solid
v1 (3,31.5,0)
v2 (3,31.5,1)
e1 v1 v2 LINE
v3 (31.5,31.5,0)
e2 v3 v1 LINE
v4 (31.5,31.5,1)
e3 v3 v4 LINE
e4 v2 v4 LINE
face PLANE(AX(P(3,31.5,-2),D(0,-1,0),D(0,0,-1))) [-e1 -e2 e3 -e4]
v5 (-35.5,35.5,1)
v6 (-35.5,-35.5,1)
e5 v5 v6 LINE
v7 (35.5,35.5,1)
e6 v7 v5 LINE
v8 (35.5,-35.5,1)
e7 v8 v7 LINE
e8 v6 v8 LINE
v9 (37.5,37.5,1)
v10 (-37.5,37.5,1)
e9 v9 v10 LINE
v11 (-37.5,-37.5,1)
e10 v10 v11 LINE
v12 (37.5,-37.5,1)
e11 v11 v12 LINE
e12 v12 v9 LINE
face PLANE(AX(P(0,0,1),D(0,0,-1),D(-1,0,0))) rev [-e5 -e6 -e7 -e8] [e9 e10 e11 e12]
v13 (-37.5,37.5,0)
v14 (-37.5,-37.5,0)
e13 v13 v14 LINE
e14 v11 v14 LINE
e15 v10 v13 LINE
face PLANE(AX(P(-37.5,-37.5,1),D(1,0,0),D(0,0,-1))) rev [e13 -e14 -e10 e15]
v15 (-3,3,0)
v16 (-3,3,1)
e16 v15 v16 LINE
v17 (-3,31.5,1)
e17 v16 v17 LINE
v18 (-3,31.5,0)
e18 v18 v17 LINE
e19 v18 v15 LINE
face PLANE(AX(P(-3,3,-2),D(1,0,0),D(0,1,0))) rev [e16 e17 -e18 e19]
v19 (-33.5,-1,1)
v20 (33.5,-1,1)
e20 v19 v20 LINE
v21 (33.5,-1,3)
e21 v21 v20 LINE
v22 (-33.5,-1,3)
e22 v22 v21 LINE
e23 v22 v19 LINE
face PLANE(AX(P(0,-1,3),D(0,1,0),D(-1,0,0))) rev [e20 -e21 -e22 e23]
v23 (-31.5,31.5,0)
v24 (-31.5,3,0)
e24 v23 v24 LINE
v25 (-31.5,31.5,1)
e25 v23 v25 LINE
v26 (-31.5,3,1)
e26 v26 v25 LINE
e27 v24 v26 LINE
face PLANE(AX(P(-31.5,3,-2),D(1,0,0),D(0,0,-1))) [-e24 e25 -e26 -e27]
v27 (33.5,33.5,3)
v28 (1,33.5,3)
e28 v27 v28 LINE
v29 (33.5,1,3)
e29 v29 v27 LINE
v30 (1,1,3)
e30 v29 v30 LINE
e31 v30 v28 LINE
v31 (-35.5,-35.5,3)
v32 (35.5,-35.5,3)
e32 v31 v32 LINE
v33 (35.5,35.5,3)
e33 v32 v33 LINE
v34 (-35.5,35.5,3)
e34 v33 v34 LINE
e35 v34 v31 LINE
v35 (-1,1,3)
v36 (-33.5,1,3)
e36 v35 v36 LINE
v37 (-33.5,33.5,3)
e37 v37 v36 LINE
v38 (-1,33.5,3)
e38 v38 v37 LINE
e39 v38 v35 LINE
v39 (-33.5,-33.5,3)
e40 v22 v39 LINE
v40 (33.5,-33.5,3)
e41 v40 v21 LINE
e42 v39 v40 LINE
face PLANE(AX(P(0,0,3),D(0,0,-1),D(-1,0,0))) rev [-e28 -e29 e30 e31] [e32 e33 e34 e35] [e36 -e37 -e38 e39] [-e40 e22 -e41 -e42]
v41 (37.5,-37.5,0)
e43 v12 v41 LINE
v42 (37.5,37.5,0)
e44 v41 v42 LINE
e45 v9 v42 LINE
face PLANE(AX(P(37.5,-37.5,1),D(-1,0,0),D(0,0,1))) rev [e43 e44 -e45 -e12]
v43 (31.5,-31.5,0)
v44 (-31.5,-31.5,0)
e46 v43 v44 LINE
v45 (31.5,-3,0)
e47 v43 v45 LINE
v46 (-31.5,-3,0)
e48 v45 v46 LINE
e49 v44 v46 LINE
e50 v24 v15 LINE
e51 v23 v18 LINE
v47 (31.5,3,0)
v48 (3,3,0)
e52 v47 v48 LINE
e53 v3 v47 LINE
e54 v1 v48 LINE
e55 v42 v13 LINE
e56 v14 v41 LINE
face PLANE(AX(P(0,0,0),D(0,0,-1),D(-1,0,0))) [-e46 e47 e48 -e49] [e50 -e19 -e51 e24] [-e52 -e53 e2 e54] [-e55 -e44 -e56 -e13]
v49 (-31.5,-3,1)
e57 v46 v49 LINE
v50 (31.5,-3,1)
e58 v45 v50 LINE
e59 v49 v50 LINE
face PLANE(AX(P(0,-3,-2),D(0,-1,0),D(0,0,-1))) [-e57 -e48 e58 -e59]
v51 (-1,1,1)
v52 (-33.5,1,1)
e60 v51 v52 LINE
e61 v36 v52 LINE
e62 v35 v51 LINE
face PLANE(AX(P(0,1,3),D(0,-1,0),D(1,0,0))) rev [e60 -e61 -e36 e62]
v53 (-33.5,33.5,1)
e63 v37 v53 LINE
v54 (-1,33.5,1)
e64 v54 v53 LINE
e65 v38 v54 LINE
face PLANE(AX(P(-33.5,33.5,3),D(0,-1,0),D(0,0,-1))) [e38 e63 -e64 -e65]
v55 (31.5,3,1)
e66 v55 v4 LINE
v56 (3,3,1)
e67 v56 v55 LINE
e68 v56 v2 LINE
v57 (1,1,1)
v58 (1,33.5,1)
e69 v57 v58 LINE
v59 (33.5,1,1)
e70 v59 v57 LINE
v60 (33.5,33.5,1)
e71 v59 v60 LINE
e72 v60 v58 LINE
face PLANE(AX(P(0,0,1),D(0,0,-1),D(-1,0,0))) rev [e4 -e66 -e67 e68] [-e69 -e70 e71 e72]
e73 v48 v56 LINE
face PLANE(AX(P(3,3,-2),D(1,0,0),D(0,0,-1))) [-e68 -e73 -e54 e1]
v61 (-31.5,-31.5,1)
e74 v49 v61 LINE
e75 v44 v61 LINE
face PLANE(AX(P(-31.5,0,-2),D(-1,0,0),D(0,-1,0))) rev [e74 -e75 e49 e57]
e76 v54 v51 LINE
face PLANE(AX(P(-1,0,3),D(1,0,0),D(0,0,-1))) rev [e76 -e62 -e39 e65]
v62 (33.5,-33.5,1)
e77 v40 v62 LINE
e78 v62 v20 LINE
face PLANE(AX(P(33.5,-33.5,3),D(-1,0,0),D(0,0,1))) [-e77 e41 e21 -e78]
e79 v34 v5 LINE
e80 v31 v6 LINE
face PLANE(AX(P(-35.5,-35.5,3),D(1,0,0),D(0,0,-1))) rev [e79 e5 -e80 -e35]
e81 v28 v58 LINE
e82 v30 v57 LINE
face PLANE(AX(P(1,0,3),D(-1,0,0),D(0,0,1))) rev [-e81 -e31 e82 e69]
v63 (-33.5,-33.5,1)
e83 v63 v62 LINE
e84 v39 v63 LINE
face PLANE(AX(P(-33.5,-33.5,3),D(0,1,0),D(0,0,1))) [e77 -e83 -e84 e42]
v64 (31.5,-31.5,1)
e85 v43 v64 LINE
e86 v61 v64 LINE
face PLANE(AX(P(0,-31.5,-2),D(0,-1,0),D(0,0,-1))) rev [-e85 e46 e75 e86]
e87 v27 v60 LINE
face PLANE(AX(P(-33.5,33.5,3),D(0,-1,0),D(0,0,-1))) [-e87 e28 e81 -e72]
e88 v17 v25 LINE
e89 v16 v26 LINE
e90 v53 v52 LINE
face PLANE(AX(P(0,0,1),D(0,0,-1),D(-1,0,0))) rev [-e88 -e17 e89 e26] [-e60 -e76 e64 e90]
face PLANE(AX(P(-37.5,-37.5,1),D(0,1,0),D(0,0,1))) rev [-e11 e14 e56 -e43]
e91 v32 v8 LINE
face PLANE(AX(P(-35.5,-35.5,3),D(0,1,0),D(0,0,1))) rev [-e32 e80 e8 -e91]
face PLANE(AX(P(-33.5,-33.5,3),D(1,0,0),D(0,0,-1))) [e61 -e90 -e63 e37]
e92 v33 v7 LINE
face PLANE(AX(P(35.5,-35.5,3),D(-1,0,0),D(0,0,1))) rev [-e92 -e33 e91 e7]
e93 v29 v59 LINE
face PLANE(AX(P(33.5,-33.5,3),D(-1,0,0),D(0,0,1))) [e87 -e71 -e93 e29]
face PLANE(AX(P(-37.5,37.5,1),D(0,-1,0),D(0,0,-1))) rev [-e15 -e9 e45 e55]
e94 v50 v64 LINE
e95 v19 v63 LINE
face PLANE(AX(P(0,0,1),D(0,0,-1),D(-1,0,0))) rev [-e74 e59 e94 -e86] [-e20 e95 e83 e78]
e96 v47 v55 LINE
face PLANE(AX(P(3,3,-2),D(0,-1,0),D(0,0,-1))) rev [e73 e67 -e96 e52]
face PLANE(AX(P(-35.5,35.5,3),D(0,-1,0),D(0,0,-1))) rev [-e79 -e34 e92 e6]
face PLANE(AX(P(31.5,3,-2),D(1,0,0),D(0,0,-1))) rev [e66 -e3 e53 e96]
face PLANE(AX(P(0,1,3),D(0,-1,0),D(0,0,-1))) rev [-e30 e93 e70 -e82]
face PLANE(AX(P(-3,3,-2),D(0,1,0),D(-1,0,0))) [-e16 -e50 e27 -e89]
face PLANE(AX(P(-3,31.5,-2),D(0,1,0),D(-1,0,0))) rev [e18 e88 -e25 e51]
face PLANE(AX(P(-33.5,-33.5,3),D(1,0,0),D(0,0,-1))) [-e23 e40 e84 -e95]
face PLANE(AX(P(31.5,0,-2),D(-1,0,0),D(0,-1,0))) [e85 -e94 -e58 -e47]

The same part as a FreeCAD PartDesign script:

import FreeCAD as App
import Part
import Sketcher
Q = App.Units.Quantity

doc = App.newDocument("Part")
body = doc.addObject("PartDesign::Body", "Body")

sketch1 = doc.addObject("Sketcher::SketchObject", "Sketch")
body.addObject(sketch1)
sketch1.AttachmentSupport = (doc.XY_Plane, [""])
sketch1.MapMode = "FlatFace"
sketch1.addGeometry([
    Part.LineSegment(App.Vector(-38, 38, 0), App.Vector(-38, -38, 0)),
    Part.LineSegment(App.Vector(-38, -38, 0), App.Vector(38, -38, 0)),
    Part.LineSegment(App.Vector(38, -38, 0), App.Vector(38, 38, 0)),
    Part.LineSegment(App.Vector(38, 38, 0), App.Vector(-38, 38, 0)),
], False)
sketch1.addConstraint([
    Sketcher.Constraint("Coincident", 0, 2, 1, 1),
    Sketcher.Constraint("Coincident", 1, 2, 2, 1),
    Sketcher.Constraint("Coincident", 2, 2, 3, 1),
    Sketcher.Constraint("Coincident", 3, 2, 0, 1),
    Sketcher.Constraint("Vertical", 0),
    Sketcher.Constraint("Horizontal", 1),
    Sketcher.Constraint("Vertical", 2),
    Sketcher.Constraint("Horizontal", 3),
    Sketcher.Constraint("Symmetric", 0, 2, 2, 2, -1, 1),
    Sketcher.Constraint("Equal", 3, 0),
    Sketcher.Constraint("DistanceX", 1, 1, 1, 2, Q("75 mm")),
])
pad1 = doc.addObject("PartDesign::Pad", "Pad")
body.addObject(pad1)
pad1.Profile = sketch1
pad1.Length = 1

sketch2 = doc.addObject("Sketcher::SketchObject", "Sketch001")
body.addObject(sketch2)
sketch2.AttachmentSupport = (doc.XY_Plane, [""])
sketch2.MapMode = "FlatFace"
sketch2.AttachmentOffset = App.Placement(App.Vector(0, 0, 1), App.Rotation())
sketch2.addGeometry([
    Part.LineSegment(App.Vector(-36, 36, 0), App.Vector(-36, -36, 0)),
    Part.LineSegment(App.Vector(-36, -36, 0), App.Vector(36, -36, 0)),
    Part.LineSegment(App.Vector(36, -36, 0), App.Vector(36, 36, 0)),
    Part.LineSegment(App.Vector(36, 36, 0), App.Vector(-36, 36, 0)),
    Part.LineSegment(App.Vector(34, -34, 0), App.Vector(-34, -34, 0)),
    Part.LineSegment(App.Vector(-34, -34, 0), App.Vector(-34, 34, 0)),
    Part.LineSegment(App.Vector(-34, 34, 0), App.Vector(34, 34, 0)),
    Part.LineSegment(App.Vector(34, 34, 0), App.Vector(34, -34, 0)),
], False)
sketch2.addConstraint([
    Sketcher.Constraint("Coincident", 0, 2, 1, 1),
    Sketcher.Constraint("Coincident", 1, 2, 2, 1),
    Sketcher.Constraint("Coincident", 2, 2, 3, 1),
    Sketcher.Constraint("Coincident", 3, 2, 0, 1),
    Sketcher.Constraint("Coincident", 4, 2, 5, 1),
    Sketcher.Constraint("Coincident", 5, 2, 6, 1),
    Sketcher.Constraint("Coincident", 6, 2, 7, 1),
    Sketcher.Constraint("Coincident", 7, 2, 4, 1),
    Sketcher.Constraint("Vertical", 0),
    Sketcher.Constraint("Horizontal", 1),
    Sketcher.Constraint("Vertical", 2),
    Sketcher.Constraint("Horizontal", 3),
    Sketcher.Constraint("Horizontal", 4),
    Sketcher.Constraint("Vertical", 5),
    Sketcher.Constraint("Horizontal", 6),
    Sketcher.Constraint("Vertical", 7),
    Sketcher.Constraint("Symmetric", 0, 2, 2, 2, -1, 1),
    Sketcher.Constraint("Symmetric", 4, 2, 6, 2, -1, 1),
    Sketcher.Constraint("Equal", 3, 0),
    Sketcher.Constraint("Equal", 6, 5),
    Sketcher.Constraint("DistanceX", 1, 1, 1, 2, Q("71 mm")),
    Sketcher.Constraint("DistanceX", 4, 2, 4, 1, Q("67 mm")),
])
pad2 = doc.addObject("PartDesign::Pad", "Pad001")
body.addObject(pad2)
pad2.Profile = sketch2
pad2.Length = 2

sketch3 = doc.addObject("Sketcher::SketchObject", "Sketch002")
body.addObject(sketch3)
sketch3.AttachmentSupport = (doc.XY_Plane, [""])
sketch3.MapMode = "FlatFace"
sketch3.AttachmentOffset = App.Placement(App.Vector(0, 0, 1), App.Rotation())
sketch3.addGeometry([
    Part.LineSegment(App.Vector(3, 32, 0), App.Vector(3, 3, 0)),
    Part.LineSegment(App.Vector(3, 3, 0), App.Vector(32, 3, 0)),
    Part.LineSegment(App.Vector(32, 3, 0), App.Vector(32, 32, 0)),
    Part.LineSegment(App.Vector(32, 32, 0), App.Vector(3, 32, 0)),
    Part.LineSegment(App.Vector(-32, -3, 0), App.Vector(-32, -32, 0)),
    Part.LineSegment(App.Vector(-32, -32, 0), App.Vector(32, -32, 0)),
    Part.LineSegment(App.Vector(32, -32, 0), App.Vector(32, -3, 0)),
    Part.LineSegment(App.Vector(32, -3, 0), App.Vector(-32, -3, 0)),
    Part.LineSegment(App.Vector(-32, 32, 0), App.Vector(-32, 3, 0)),
    Part.LineSegment(App.Vector(-32, 3, 0), App.Vector(-3, 3, 0)),
    Part.LineSegment(App.Vector(-3, 3, 0), App.Vector(-3, 32, 0)),
    Part.LineSegment(App.Vector(-3, 32, 0), App.Vector(-32, 32, 0)),
], False)
sketch3.addConstraint([
    Sketcher.Constraint("Coincident", 0, 2, 1, 1),
    Sketcher.Constraint("Coincident", 1, 2, 2, 1),
    Sketcher.Constraint("Coincident", 2, 2, 3, 1),
    Sketcher.Constraint("Coincident", 3, 2, 0, 1),
    Sketcher.Constraint("Coincident", 4, 2, 5, 1),
    Sketcher.Constraint("Coincident", 5, 2, 6, 1),
    Sketcher.Constraint("Coincident", 6, 2, 7, 1),
    Sketcher.Constraint("Coincident", 7, 2, 4, 1),
    Sketcher.Constraint("Coincident", 8, 2, 9, 1),
    Sketcher.Constraint("Coincident", 9, 2, 10, 1),
    Sketcher.Constraint("Coincident", 10, 2, 11, 1),
    Sketcher.Constraint("Coincident", 11, 2, 8, 1),
    Sketcher.Constraint("Vertical", 0),
    Sketcher.Constraint("Horizontal", 1),
    Sketcher.Constraint("Vertical", 2),
    Sketcher.Constraint("Horizontal", 3),
    Sketcher.Constraint("Vertical", 4),
    Sketcher.Constraint("Horizontal", 5),
    Sketcher.Constraint("Vertical", 6),
    Sketcher.Constraint("Horizontal", 7),
    Sketcher.Constraint("Vertical", 8),
    Sketcher.Constraint("Horizontal", 9),
    Sketcher.Constraint("Vertical", 10),
    Sketcher.Constraint("Horizontal", 11),
    Sketcher.Constraint("Symmetric", 2, 2, 4, 2, -1, 1),
    Sketcher.Constraint("Symmetric", 6, 2, 8, 2, -1, 1),
    Sketcher.Constraint("Symmetric", 1, 2, 8, 2, -2),
    Sketcher.Constraint("Symmetric", 3, 2, 10, 2, -2),
    Sketcher.Constraint("Equal", 11, 0),
    Sketcher.Constraint("DistanceX", 5, 1, 5, 2, Q("63 mm")),
    Sketcher.Constraint("DistanceX", 1, 1, 1, 2, Q("28.5 mm")),
    Sketcher.Constraint("DistanceY", -1, 1, 0, 2, Q("3 mm")),
])
pocket1 = doc.addObject("PartDesign::Pocket", "Pocket")
body.addObject(pocket1)
pocket1.Profile = sketch3
pocket1.Length = 3

sketch4 = doc.addObject("Sketcher::SketchObject", "Sketch003")
body.addObject(sketch4)
sketch4.AttachmentSupport = (doc.XY_Plane, [""])
sketch4.MapMode = "FlatFace"
sketch4.AttachmentOffset = App.Placement(App.Vector(0, 0, 1), App.Rotation())
sketch4.addGeometry([
    Part.LineSegment(App.Vector(-1, 33.5, 0), App.Vector(-1, 1, 0)),
    Part.LineSegment(App.Vector(-1, 1, 0), App.Vector(-33.5, 1, 0)),
    Part.LineSegment(App.Vector(-33.5, 1, 0), App.Vector(-33.5, -1, 0)),
    Part.LineSegment(App.Vector(-33.5, -1, 0), App.Vector(33.5, -1, 0)),
    Part.LineSegment(App.Vector(33.5, -1, 0), App.Vector(33.5, 1, 0)),
    Part.LineSegment(App.Vector(33.5, 1, 0), App.Vector(1, 1, 0)),
    Part.LineSegment(App.Vector(1, 1, 0), App.Vector(1, 33.5, 0)),
    Part.LineSegment(App.Vector(1, 33.5, 0), App.Vector(-1, 33.5, 0)),
], False)
sketch4.addConstraint([
    Sketcher.Constraint("Coincident", 0, 2, 1, 1),
    Sketcher.Constraint("Coincident", 1, 2, 2, 1),
    Sketcher.Constraint("Coincident", 2, 2, 3, 1),
    Sketcher.Constraint("Coincident", 3, 2, 4, 1),
    Sketcher.Constraint("Coincident", 4, 2, 5, 1),
    Sketcher.Constraint("Coincident", 5, 2, 6, 1),
    Sketcher.Constraint("Coincident", 6, 2, 7, 1),
    Sketcher.Constraint("Coincident", 7, 2, 0, 1),
    Sketcher.Constraint("Vertical", 0),
    Sketcher.Constraint("Horizontal", 1),
    Sketcher.Constraint("Vertical", 2),
    Sketcher.Constraint("Horizontal", 3),
    Sketcher.Constraint("Vertical", 4),
    Sketcher.Constraint("Horizontal", 5),
    Sketcher.Constraint("Vertical", 6),
    Sketcher.Constraint("Horizontal", 7),
    Sketcher.Constraint("Symmetric", 1, 2, 3, 2, -1, 1),
    Sketcher.Constraint("Symmetric", 0, 2, 5, 2, -2),
    Sketcher.Constraint("Equal", 5, 0),
    Sketcher.Constraint("Equal", 7, 2),
    Sketcher.Constraint("DistanceX", 3, 1, 3, 2, Q("67 mm")),
    Sketcher.Constraint("DistanceX", 7, 2, 7, 1, Q("2 mm")),
])
pad3 = doc.addObject("PartDesign::Pad", "Pad002")
body.addObject(pad3)
pad3.Profile = sketch4
pad3.Length = 2

doc.recompute()
